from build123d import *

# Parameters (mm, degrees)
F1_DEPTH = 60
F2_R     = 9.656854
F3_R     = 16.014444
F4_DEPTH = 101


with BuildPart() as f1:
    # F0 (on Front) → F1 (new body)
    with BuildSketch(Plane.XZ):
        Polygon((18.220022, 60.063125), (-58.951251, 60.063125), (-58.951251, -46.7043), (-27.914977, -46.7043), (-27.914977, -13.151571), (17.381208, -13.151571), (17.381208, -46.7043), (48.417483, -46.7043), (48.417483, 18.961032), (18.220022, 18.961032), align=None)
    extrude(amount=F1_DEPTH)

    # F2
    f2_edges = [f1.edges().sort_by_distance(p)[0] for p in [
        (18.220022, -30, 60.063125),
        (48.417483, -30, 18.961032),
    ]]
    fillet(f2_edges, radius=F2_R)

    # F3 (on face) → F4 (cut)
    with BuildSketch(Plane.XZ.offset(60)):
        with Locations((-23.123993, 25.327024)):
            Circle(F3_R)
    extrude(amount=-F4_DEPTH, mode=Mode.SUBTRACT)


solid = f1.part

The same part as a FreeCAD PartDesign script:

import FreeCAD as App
import Part
import Sketcher

V = App.Vector


def edges_at(feature, points):
    """Names of the edges that pass closest to the given points."""
    edges = feature.Shape.Edges
    near = lambda p: min(range(len(edges)), key=lambda i: edges[i].distToShape(Part.Vertex(*p))[0])
    return sorted({f"Edge{near(p) + 1}" for p in points})


def add_polygon(sketch, points):
    """Adds a closed chain of lines whose ends are joined by coincident constraints."""
    first, n = sketch.GeometryCount, len(points)
    for a, b in zip(points, points[1:] + points[:1]):
        sketch.addGeometry(Part.LineSegment(App.Vector(*a, 0), App.Vector(*b, 0)), False)
    for i in range(n):
        sketch.addConstraint(Sketcher.Constraint("Coincident", first + i, 2, first + (i + 1) % n, 1))

doc = App.newDocument("Part")
body = doc.addObject("PartDesign::Body", "Body")

# Sketch on XZ plane
sketch1 = doc.addObject("Sketcher::SketchObject", "Sketch")
body.addObject(sketch1)
sketch1.AttachmentSupport = (doc.XZ_Plane, [""])
sketch1.MapMode = "FlatFace"
add_polygon(sketch1, [(18, 60), (-59, 60), (-59, -47), (-28, -47), (-28, -13), (17, -13), (17, -47), (48, -47), (48, 19), (18, 19)])  # lines 0-9
sketch1.addConstraint([
    Sketcher.Constraint("Horizontal", 0),
    Sketcher.Constraint("Vertical", 1),
    Sketcher.Constraint("Horizontal", 2),
    Sketcher.Constraint("Vertical", 3),
    Sketcher.Constraint("Horizontal", 4),
    Sketcher.Constraint("Vertical", 5),
    Sketcher.Constraint("Horizontal", 6),
    Sketcher.Constraint("Vertical", 7),
    Sketcher.Constraint("Horizontal", 8),
    Sketcher.Constraint("Vertical", 9),
    Sketcher.Constraint("Horizontal", 2, 2, 5, 2),
    Sketcher.Constraint("Equal", 2, 6),
    Sketcher.Constraint("DistanceX", 3, 2, 8, 2, 46.134999),
    Sketcher.Constraint("DistanceX", 8, 2, 8, 1, 30.197461),
    Sketcher.Constraint("DistanceY", 3, 1, 3, 2, 33.552729),
    Sketcher.Constraint("DistanceY", 1, 2, -1, 1, 46.7043),
    Sketcher.Constraint("DistanceX", 0, 2, 0, 1, 77.171273),
    Sketcher.Constraint("DistanceY", 1, 2, 1, 1, 106.767425),
    Sketcher.Constraint("DistanceY", 7, 1, 7, 2, 65.665332),
    Sketcher.Constraint("DistanceX", 0, 2, -1, 1, 58.951251),
])
pad1 = doc.addObject("PartDesign::Pad", "Pad")
body.addObject(pad1)
pad1.Profile = sketch1
pad1.Length = 60
doc.recompute()

fillet = doc.addObject("PartDesign::Fillet", "Fillet")
body.addObject(fillet)
fillet.Base = (pad1, edges_at(pad1, [(18.22, -30, 60.063), (48.417, -30, 18.961)]))
fillet.Radius = 9.656854

# Sketch on XZ plane
sketch2 = doc.addObject("Sketcher::SketchObject", "Sketch001")
body.addObject(sketch2)
sketch2.AttachmentSupport = (doc.XZ_Plane, [""])
sketch2.MapMode = "FlatFace"
sketch2.AttachmentOffset = App.Placement(V(0, 0, 60), App.Rotation())
sketch2.addGeometry(Part.Circle(V(-23, 25, 0), V(0, 0, 1), 16), False)
sketch2.addConstraint([
    Sketcher.Constraint("Diameter", 0, 32.028888),
    Sketcher.Constraint("DistanceX", 0, 3, -1, 1, 23.123993),
    Sketcher.Constraint("DistanceY", -1, 1, 0, 3, 25.327024),
])
pocket1 = doc.addObject("PartDesign::Pocket", "Pocket")
body.addObject(pocket1)
pocket1.Profile = sketch2
pocket1.Length = 101

doc.recompute()
